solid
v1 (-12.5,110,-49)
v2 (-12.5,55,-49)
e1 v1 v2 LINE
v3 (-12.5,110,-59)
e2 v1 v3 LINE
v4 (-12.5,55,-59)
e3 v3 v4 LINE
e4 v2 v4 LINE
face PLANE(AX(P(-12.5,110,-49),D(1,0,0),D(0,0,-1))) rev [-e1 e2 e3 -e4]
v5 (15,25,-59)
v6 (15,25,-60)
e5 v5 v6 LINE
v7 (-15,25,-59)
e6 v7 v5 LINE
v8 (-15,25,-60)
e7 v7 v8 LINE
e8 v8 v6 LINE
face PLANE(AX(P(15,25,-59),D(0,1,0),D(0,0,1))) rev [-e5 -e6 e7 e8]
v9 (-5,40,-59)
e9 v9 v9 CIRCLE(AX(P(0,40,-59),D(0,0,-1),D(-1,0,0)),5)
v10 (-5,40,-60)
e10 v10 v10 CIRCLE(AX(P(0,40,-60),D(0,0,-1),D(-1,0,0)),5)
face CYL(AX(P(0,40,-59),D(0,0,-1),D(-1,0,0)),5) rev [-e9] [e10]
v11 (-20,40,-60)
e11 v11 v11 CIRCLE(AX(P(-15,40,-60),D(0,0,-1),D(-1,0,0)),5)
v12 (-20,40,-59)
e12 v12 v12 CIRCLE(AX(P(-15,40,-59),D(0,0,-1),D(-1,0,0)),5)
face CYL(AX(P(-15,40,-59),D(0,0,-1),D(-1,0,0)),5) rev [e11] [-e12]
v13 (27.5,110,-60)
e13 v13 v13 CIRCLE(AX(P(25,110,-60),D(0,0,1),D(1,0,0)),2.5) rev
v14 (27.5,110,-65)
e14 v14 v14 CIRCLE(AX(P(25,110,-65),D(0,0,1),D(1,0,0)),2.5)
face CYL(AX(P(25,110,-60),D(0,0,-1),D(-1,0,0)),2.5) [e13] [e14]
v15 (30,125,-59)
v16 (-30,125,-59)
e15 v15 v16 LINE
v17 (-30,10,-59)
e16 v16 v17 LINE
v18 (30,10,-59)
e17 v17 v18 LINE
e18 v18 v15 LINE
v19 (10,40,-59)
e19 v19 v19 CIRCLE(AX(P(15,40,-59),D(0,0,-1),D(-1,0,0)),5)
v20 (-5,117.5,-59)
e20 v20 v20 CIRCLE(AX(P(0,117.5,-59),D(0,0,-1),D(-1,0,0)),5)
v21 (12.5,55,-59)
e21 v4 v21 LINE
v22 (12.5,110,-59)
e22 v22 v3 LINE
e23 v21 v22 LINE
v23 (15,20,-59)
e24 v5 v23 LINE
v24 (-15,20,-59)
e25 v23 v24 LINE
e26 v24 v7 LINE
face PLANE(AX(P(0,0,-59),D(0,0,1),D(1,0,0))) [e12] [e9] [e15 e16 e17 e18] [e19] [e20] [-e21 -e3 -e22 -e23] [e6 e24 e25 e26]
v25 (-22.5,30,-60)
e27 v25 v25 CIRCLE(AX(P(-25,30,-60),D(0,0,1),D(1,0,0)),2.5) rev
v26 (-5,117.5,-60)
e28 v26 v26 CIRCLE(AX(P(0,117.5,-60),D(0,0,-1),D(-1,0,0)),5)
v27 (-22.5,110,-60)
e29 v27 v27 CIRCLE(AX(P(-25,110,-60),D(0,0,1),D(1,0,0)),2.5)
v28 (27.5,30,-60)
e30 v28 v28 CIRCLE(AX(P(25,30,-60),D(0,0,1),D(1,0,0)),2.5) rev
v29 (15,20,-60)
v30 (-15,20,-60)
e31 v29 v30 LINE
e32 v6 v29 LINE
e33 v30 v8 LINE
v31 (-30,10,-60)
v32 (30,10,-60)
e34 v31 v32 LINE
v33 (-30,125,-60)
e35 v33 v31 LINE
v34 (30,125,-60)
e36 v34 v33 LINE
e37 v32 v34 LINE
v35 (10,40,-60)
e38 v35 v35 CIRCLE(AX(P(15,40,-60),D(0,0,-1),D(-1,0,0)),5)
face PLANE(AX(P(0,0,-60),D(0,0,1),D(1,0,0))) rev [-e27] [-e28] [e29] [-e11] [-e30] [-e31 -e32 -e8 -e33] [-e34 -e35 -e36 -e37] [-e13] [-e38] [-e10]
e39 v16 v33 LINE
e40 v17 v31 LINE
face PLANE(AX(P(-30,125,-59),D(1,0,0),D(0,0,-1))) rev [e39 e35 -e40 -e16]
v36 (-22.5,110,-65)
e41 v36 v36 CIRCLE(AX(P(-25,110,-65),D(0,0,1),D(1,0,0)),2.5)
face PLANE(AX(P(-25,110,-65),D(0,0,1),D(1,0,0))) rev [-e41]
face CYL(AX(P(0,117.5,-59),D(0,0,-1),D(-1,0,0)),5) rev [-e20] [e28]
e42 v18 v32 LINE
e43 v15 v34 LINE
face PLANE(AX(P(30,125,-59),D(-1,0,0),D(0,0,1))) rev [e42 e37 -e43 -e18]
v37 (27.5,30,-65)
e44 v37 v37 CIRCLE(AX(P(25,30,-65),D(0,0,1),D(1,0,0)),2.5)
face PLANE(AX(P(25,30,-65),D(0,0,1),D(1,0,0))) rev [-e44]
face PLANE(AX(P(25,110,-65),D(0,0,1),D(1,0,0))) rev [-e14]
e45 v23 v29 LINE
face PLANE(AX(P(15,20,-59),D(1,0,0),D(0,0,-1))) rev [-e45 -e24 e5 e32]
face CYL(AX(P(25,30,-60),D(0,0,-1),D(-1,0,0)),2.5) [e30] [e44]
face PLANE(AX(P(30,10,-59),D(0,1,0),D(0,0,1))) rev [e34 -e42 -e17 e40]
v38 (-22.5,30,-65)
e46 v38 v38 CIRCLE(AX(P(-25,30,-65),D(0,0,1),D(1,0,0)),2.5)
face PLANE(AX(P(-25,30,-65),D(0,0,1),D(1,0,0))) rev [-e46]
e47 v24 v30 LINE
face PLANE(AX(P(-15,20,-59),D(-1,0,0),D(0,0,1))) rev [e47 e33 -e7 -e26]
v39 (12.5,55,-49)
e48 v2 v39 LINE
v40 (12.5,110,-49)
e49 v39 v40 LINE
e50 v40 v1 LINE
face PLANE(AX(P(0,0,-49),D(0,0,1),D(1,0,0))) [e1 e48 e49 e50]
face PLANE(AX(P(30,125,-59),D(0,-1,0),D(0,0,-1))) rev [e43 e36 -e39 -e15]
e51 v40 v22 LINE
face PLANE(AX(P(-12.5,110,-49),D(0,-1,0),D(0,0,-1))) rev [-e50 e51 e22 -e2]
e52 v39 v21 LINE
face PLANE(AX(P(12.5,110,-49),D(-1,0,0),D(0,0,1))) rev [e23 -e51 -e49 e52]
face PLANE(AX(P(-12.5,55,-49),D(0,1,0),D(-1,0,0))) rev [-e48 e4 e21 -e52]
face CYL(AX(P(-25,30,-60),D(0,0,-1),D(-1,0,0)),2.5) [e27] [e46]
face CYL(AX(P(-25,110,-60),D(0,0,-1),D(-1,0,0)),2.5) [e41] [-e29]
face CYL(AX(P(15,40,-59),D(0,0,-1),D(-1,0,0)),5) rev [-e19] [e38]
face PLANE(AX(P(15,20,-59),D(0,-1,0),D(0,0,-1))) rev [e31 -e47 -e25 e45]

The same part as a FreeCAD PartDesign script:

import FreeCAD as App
import Part
import Sketcher

V = App.Vector
Q = App.Units.Quantity


def add_polygon(sketch, points):
    """Adds a closed chain of lines whose ends are joined by coincident constraints."""
    first, n = sketch.GeometryCount, len(points)
    for a, b in zip(points, points[1:] + points[:1]):
        sketch.addGeometry(Part.LineSegment(App.Vector(*a, 0), App.Vector(*b, 0)), False)
    for i in range(n):
        sketch.addConstraint(Sketcher.Constraint("Coincident", first + i, 2, first + (i + 1) % n, 1))

doc = App.newDocument("Part")
params = doc.addObject("Spreadsheet::Sheet", "Params")
for row, (alias, value) in enumerate([
    ("sketch1_diameter", "5 mm"),
    ("pad1_length", "5 mm"),
    ("sketch2_diameter", "5 mm"),
    ("pad2_length", "5 mm"),
    ("sketch3_diameter", "5 mm"),
    ("pad3_length", "5 mm"),
    ("sketch4_diameter", "5 mm"),
    ("pad4_length", "5 mm"),
    ("sketch5_width", "60 mm"),
    ("sketch5_height", "115 mm"),
    ("pad5_length", "1 mm"),
    ("sketch6_diameter", "10 mm"),
    ("sketch6_width", "30 mm"),
    ("sketch6_height", "5 mm"),
    ("sketch7_width", "25 mm"),
    ("sketch7_height", "55 mm"),
    ("pad6_length", "10 mm"),
], start=1):
    params.set(f"A{row}", alias)
    params.set(f"B{row}", "=" + value)
    params.setAlias(f"B{row}", alias)

body = doc.addObject("PartDesign::Body", "Body")

# Sketch on XY plane
sketch1 = body.newObject("Sketcher::SketchObject", "Sketch")
sketch1.AttachmentSupport = (doc.getObject("XY_Plane"), [""])
sketch1.MapMode = "FlatFace"
sketch1.AttachmentOffset = App.Placement(V(0, 0, -65), App.Rotation())
sketch1.addGeometry(Part.Circle(V(-25, 110, 0), V(0, 0, 1), 2.5), False)
sketch1.addConstraint([
    Sketcher.Constraint("Diameter", 0, Q("5 mm")),
    Sketcher.Constraint("DistanceX", 0, 3, -1, 1, Q("25 mm")),
    Sketcher.Constraint("DistanceY", -1, 1, 0, 3, Q("110 mm")),
])
sketch1.setExpression("Constraints[0]", "Params.sketch1_diameter")
pad1 = body.newObject("PartDesign::Pad", "Pad")
pad1.Profile = sketch1
pad1.setExpression("Length", "Params.pad1_length")
body2 = doc.addObject("PartDesign::Body", "Body001")

# Sketch on XY plane
sketch2 = body2.newObject("Sketcher::SketchObject", "Sketch001")
sketch2.AttachmentSupport = (doc.getObject("XY_Plane001"), [""])
sketch2.MapMode = "FlatFace"
sketch2.AttachmentOffset = App.Placement(V(0, 0, -65), App.Rotation())
sketch2.addGeometry(Part.Circle(V(25, 110, 0), V(0, 0, 1), 2.5), False)
sketch2.addConstraint([
    Sketcher.Constraint("Diameter", 0, Q("5 mm")),
    Sketcher.Constraint("DistanceX", -1, 1, 0, 3, Q("25 mm")),
    Sketcher.Constraint("DistanceY", -1, 1, 0, 3, Q("110 mm")),
])
sketch2.setExpression("Constraints[0]", "Params.sketch2_diameter")
pad2 = body2.newObject("PartDesign::Pad", "Pad001")
pad2.Profile = sketch2
pad2.setExpression("Length", "Params.pad2_length")
body3 = doc.addObject("PartDesign::Body", "Body002")

# Sketch on XY plane
sketch3 = body3.newObject("Sketcher::SketchObject", "Sketch002")
sketch3.AttachmentSupport = (doc.getObject("XY_Plane002"), [""])
sketch3.MapMode = "FlatFace"
sketch3.AttachmentOffset = App.Placement(V(0, 0, -65), App.Rotation())
sketch3.addGeometry(Part.Circle(V(25, 30, 0), V(0, 0, 1), 2.5), False)
sketch3.addConstraint([
    Sketcher.Constraint("Diameter", 0, Q("5 mm")),
    Sketcher.Constraint("DistanceX", -1, 1, 0, 3, Q("25 mm")),
    Sketcher.Constraint("DistanceY", -1, 1, 0, 3, Q("30 mm")),
])
sketch3.setExpression("Constraints[0]", "Params.sketch3_diameter")
pad3 = body3.newObject("PartDesign::Pad", "Pad002")
pad3.Profile = sketch3
pad3.setExpression("Length", "Params.pad3_length")
body4 = doc.addObject("PartDesign::Body", "Body003")

# Sketch on XY plane
sketch4 = body4.newObject("Sketcher::SketchObject", "Sketch003")
sketch4.AttachmentSupport = (doc.getObject("XY_Plane003"), [""])
sketch4.MapMode = "FlatFace"
sketch4.AttachmentOffset = App.Placement(V(0, 0, -65), App.Rotation())
sketch4.addGeometry(Part.Circle(V(-25, 30, 0), V(0, 0, 1), 2.5), False)
sketch4.addConstraint([
    Sketcher.Constraint("Diameter", 0, Q("5 mm")),
    Sketcher.Constraint("DistanceX", 0, 3, -1, 1, Q("25 mm")),
    Sketcher.Constraint("DistanceY", -1, 1, 0, 3, Q("30 mm")),
])
sketch4.setExpression("Constraints[0]", "Params.sketch4_diameter")
pad4 = body4.newObject("PartDesign::Pad", "Pad003")
pad4.Profile = sketch4
pad4.setExpression("Length", "Params.pad4_length")
body.AllowCompound = True
doc.recompute()

boolean = body.newObject("PartDesign::Boolean", "Boolean")
boolean.Type = "Fuse"
boolean.addObjects([body2])
doc.recompute()

boolean2 = body.newObject("PartDesign::Boolean", "Boolean001")
boolean2.Type = "Fuse"
boolean2.addObjects([body3])
doc.recompute()

boolean3 = body.newObject("PartDesign::Boolean", "Boolean002")
boolean3.Type = "Fuse"
boolean3.addObjects([body4])

# Sketch on XY plane
sketch5 = body.newObject("Sketcher::SketchObject", "Sketch004")
sketch5.AttachmentSupport = (doc.getObject("XY_Plane"), [""])
sketch5.MapMode = "FlatFace"
sketch5.AttachmentOffset = App.Placement(V(0, 0, -60), App.Rotation())
add_polygon(sketch5, [(-30, 125), (-30, 10), (30, 10), (30, 125)])  # lines 0-3
sketch5.addConstraint([
    Sketcher.Constraint("Vertical", 0),
    Sketcher.Constraint("Horizontal", 1),
    Sketcher.Constraint("Vertical", 2),
    Sketcher.Constraint("Horizontal", 3),
    Sketcher.Constraint("DistanceX", 1, 1, 1, 2, Q("60 mm")),
    Sketcher.Constraint("DistanceY", 0, 2, 0, 1, Q("115 mm")),
    Sketcher.Constraint("DistanceX", 0, 2, -1, 1, Q("30 mm")),
    Sketcher.Constraint("DistanceY", -1, 1, 0, 2, Q("10 mm")),
])
sketch5.setExpression("Constraints[8]", "Params.sketch5_width")
sketch5.setExpression("Constraints[9]", "Params.sketch5_height")
pad5 = body.newObject("PartDesign::Pad", "Pad004")
pad5.Profile = sketch5
pad5.setExpression("Length", "Params.pad5_length")

# Sketch on XY plane
sketch6 = body.newObject("Sketcher::SketchObject", "Sketch005")
sketch6.AttachmentSupport = (doc.getObject("XY_Plane"), [""])
sketch6.MapMode = "FlatFace"
sketch6.AttachmentOffset = App.Placement(V(0, 0, -60), App.Rotation())
sketch6.addGeometry(Part.Circle(V(0, 40, 0), V(0, 0, 1), 5), False)  # 0
sketch6.addGeometry(Part.Circle(V(15, 40, 0), V(0, 0, 1), 5), False)  # 1
sketch6.addGeometry(Part.Circle(V(-15, 40, 0), V(0, 0, 1), 5), False)  # 2
sketch6.addGeometry(Part.Circle(V(0, 118, 0), V(0, 0, 1), 5), False)  # 3
add_polygon(sketch6, [(15, 25), (15, 20), (-15, 20), (-15, 25)])  # lines 4-7
sketch6.addConstraint([
    Sketcher.Constraint("Vertical", 4),
    Sketcher.Constraint("Horizontal", 5),
    Sketcher.Constraint("Vertical", 6),
    Sketcher.Constraint("Horizontal", 7),
    Sketcher.Constraint("Equal", 0, 1),
    Sketcher.Constraint("Equal", 1, 2),
    Sketcher.Constraint("Equal", 2, 3),
    Sketcher.Constraint("Symmetric", 1, 3, 2, 3, -2),
    Sketcher.Constraint("PointOnObject", 0, 3, -2),
    Sketcher.Constraint("PointOnObject", 3, 3, -2),
    Sketcher.Constraint("Horizontal", 0, 3, 1, 3),
    Sketcher.Constraint("Vertical", 1, 3, 4, 2),
    Sketcher.Constraint("Vertical", 2, 3, 5, 2),
    Sketcher.Constraint("Diameter", 0, Q("10 mm")),
    Sketcher.Constraint("DistanceX", 5, 2, 5, 1, Q("30 mm")),
    Sketcher.Constraint("DistanceY", 4, 2, 4, 1, Q("5 mm")),
    Sketcher.Constraint("DistanceY", -1, 1, 0, 3, Q("40 mm")),
    Sketcher.Constraint("DistanceY", -1, 1, 4, 2, Q("20 mm")),
    Sketcher.Constraint("DistanceY", -1, 1, 3, 3, Q("117.5 mm")),
])
sketch6.setExpression("Constraints[17]", "Params.sketch6_diameter")
sketch6.setExpression("Constraints[18]", "Params.sketch6_width")
sketch6.setExpression("Constraints[19]", "Params.sketch6_height")
pocket1 = body.newObject("PartDesign::Pocket", "Pocket")
pocket1.Profile = sketch6
pocket1.Type = "ThroughAll"
pocket1.Reversed = True

# Sketch on XY plane
sketch7 = body.newObject("Sketcher::SketchObject", "Sketch006")
sketch7.AttachmentSupport = (doc.getObject("XY_Plane"), [""])
sketch7.MapMode = "FlatFace"
sketch7.AttachmentOffset = App.Placement(V(0, 0, -59), App.Rotation())
add_polygon(sketch7, [(-12, 110), (-12, 55), (12, 55), (12, 110)])  # lines 0-3
sketch7.addConstraint([
    Sketcher.Constraint("Vertical", 0),
    Sketcher.Constraint("Horizontal", 1),
    Sketcher.Constraint("Vertical", 2),
    Sketcher.Constraint("Horizontal", 3),
    Sketcher.Constraint("DistanceX", 1, 1, 1, 2, Q("25 mm")),
    Sketcher.Constraint("DistanceY", 0, 2, 0, 1, Q("55 mm")),
    Sketcher.Constraint("DistanceY", -1, 1, 0, 2, Q("55 mm")),
    Sketcher.Constraint("DistanceX", 0, 2, -1, 1, Q("12.5 mm")),
])
sketch7.setExpression("Constraints[8]", "Params.sketch7_width")
sketch7.setExpression("Constraints[9]", "Params.sketch7_height")
pad6 = body.newObject("PartDesign::Pad", "Pad005")
pad6.Profile = sketch7
pad6.setExpression("Length", "Params.pad6_length")

doc.recompute()
